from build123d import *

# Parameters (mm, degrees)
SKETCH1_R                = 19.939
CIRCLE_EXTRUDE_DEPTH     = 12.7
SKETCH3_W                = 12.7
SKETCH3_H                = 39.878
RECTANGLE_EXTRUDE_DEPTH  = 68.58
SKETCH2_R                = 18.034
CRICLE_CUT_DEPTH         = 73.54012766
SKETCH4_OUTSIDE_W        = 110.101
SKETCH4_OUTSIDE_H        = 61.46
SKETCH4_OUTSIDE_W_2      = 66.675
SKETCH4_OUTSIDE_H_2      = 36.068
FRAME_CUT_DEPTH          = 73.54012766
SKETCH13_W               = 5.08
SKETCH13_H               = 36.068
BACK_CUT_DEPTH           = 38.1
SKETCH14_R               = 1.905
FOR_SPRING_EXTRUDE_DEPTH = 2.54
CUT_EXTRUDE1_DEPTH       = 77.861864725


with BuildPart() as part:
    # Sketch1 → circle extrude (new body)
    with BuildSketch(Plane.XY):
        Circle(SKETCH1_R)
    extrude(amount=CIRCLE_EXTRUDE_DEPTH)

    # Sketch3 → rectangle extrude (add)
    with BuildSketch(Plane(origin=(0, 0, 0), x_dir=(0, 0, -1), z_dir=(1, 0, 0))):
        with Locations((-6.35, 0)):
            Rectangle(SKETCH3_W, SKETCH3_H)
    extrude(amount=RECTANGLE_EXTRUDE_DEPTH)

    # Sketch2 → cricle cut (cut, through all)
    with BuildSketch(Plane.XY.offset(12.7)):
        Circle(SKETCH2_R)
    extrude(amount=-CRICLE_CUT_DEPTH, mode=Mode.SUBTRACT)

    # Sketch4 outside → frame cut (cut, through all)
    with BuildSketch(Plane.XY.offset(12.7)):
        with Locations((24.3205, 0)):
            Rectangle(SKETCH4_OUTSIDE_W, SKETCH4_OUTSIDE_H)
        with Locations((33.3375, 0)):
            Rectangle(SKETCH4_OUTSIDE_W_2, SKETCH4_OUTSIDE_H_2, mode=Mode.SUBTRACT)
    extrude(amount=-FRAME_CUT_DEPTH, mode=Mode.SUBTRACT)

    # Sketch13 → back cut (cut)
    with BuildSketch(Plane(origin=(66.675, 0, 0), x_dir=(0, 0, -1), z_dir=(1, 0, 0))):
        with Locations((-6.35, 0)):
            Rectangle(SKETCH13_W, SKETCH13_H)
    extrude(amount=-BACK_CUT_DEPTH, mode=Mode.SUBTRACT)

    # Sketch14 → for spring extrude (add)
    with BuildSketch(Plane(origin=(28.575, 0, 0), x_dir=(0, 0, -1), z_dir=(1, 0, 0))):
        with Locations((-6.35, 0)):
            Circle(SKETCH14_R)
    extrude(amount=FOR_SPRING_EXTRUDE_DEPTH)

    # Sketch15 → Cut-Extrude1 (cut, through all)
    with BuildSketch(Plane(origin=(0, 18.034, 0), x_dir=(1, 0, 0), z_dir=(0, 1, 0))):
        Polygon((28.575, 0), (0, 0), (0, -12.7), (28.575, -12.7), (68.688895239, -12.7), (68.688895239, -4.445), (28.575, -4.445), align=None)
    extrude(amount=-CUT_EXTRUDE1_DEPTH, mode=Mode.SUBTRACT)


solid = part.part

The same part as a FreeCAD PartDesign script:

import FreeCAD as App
import Part
import Sketcher

V = App.Vector
Q = App.Units.Quantity

doc = App.newDocument("Part")
body = doc.addObject("PartDesign::Body", "Body")

sketch1 = doc.addObject("Sketcher::SketchObject", "Sketch")
body.addObject(sketch1)
sketch1.AttachmentSupport = (doc.XY_Plane, [""])
sketch1.MapMode = "FlatFace"
sketch1.addGeometry(Part.Circle(V(0, 0, 0), V(0, 0, 1), 19.939), False)
sketch1.addConstraint([
    Sketcher.Constraint("Coincident", 0, 3, -1, 1),
    Sketcher.Constraint("Diameter", 0, Q("1.57 in")),
])
pad1 = doc.addObject("PartDesign::Pad", "Pad")
body.addObject(pad1)
pad1.Profile = sketch1
pad1.Length = Q("0.5 in")

sketch2 = doc.addObject("Sketcher::SketchObject", "Sketch001")
body.addObject(sketch2)
sketch2.AttachmentSupport = (doc.YZ_Plane, [""])
sketch2.MapMode = "FlatFace"
sketch2.addGeometry([
    Part.LineSegment(V(19.939, 12.7, 0), V(-19.939, 12.7, 0)),
    Part.LineSegment(V(-19.939, 12.7, 0), V(-19.939, 0, 0)),
    Part.LineSegment(V(-19.939, 0, 0), V(19.939, 0, 0)),
    Part.LineSegment(V(19.939, 0, 0), V(19.939, 12.7, 0)),
], False)
sketch2.addConstraint([
    Sketcher.Constraint("Coincident", 0, 2, 1, 1),
    Sketcher.Constraint("Coincident", 1, 2, 2, 1),
    Sketcher.Constraint("Coincident", 2, 2, 3, 1),
    Sketcher.Constraint("Coincident", 3, 2, 0, 1),
    Sketcher.Constraint("Horizontal", 0),
    Sketcher.Constraint("Vertical", 1),
    Sketcher.Constraint("Horizontal", 2),
    Sketcher.Constraint("Vertical", 3),
    Sketcher.Constraint("Symmetric", 1, 2, 2, 2, -1, 1),
    Sketcher.Constraint("DistanceY", 1, 2, 1, 1, Q("0.5 in")),
    Sketcher.Constraint("DistanceX", 0, 2, 0, 1, Q("1.57 in")),
])
pad2 = doc.addObject("PartDesign::Pad", "Pad001")
body.addObject(pad2)
pad2.Profile = sketch2
pad2.Length = Q("2.7 in")

sketch3 = doc.addObject("Sketcher::SketchObject", "Sketch002")
body.addObject(sketch3)
sketch3.AttachmentSupport = (doc.XY_Plane, [""])
sketch3.MapMode = "FlatFace"
sketch3.AttachmentOffset = App.Placement(V(0, 0, 0.5 * 25.4), App.Rotation())
sketch3.addGeometry(Part.Circle(V(0, 0, 0), V(0, 0, 1), 18.034), False)
sketch3.addConstraint([
    Sketcher.Constraint("Coincident", 0, 3, -1, 1),
    Sketcher.Constraint("Diameter", 0, Q("1.42 in")),
])
pocket1 = doc.addObject("PartDesign::Pocket", "Pocket")
body.addObject(pocket1)
pocket1.Profile = sketch3
pocket1.Type = "ThroughAll"

sketch4 = doc.addObject("Sketcher::SketchObject", "Sketch003")
body.addObject(sketch4)
sketch4.AttachmentSupport = (doc.XY_Plane, [""])
sketch4.MapMode = "FlatFace"
sketch4.AttachmentOffset = App.Placement(V(0, 0, 0.5 * 25.4), App.Rotation())
sketch4.addGeometry([
    Part.LineSegment(V(-30.73, 30.73, 0), V(-30.73, -30.73, 0)),
    Part.LineSegment(V(-30.73, -30.73, 0), V(79.371, -30.73, 0)),
    Part.LineSegment(V(79.371, -30.73, 0), V(79.371, 30.73, 0)),
    Part.LineSegment(V(79.371, 30.73, 0), V(-30.73, 30.73, 0)),
    Part.LineSegment(V(66.675, -18.034, 0), V(0, -18.034, 0)),
    Part.LineSegment(V(0, -18.034, 0), V(0, 18.034, 0)),
    Part.LineSegment(V(0, 18.034, 0), V(66.675, 18.034, 0)),
    Part.LineSegment(V(66.675, 18.034, 0), V(66.675, -18.034, 0)),
], False)
sketch4.addConstraint([
    Sketcher.Constraint("Coincident", 0, 2, 1, 1),
    Sketcher.Constraint("Coincident", 1, 2, 2, 1),
    Sketcher.Constraint("Coincident", 2, 2, 3, 1),
    Sketcher.Constraint("Coincident", 3, 2, 0, 1),
    Sketcher.Constraint("Coincident", 4, 2, 5, 1),
    Sketcher.Constraint("Coincident", 5, 2, 6, 1),
    Sketcher.Constraint("Coincident", 6, 2, 7, 1),
    Sketcher.Constraint("Coincident", 7, 2, 4, 1),
    Sketcher.Constraint("Vertical", 0),
    Sketcher.Constraint("Horizontal", 1),
    Sketcher.Constraint("Vertical", 2),
    Sketcher.Constraint("Horizontal", 3),
    Sketcher.Constraint("Horizontal", 4),
    Sketcher.Constraint("Vertical", 5),
    Sketcher.Constraint("Horizontal", 6),
    Sketcher.Constraint("Vertical", 7),
    Sketcher.Constraint("Symmetric", 4, 2, 5, 2, -1, 1),
    Sketcher.Constraint("DistanceY", 5, 1, 5, 2, Q("1.42 in")),
    Sketcher.Constraint("DistanceX", 4, 2, 4, 1, Q("2.625 in")),
    Sketcher.Constraint("DistanceX", 1, 1, 1, 2, 110.101),
    Sketcher.Constraint("DistanceY", 0, 2, 0, 1, 61.46),
    Sketcher.Constraint("DistanceX", 0, 2, -1, 1, 30.73),
    Sketcher.Constraint("DistanceY", 0, 2, -1, 1, 30.73),
])
pocket2 = doc.addObject("PartDesign::Pocket", "Pocket001")
body.addObject(pocket2)
pocket2.Profile = sketch4
pocket2.Type = "ThroughAll"

sketch5 = doc.addObject("Sketcher::SketchObject", "Sketch004")
body.addObject(sketch5)
sketch5.AttachmentSupport = (doc.YZ_Plane, [""])
sketch5.MapMode = "FlatFace"
sketch5.AttachmentOffset = App.Placement(V(0, 0, 2.625 * 25.4), App.Rotation())
sketch5.addGeometry([
    Part.LineSegment(V(18.034, 8.89, 0), V(-18.034, 8.89, 0)),
    Part.LineSegment(V(-18.034, 8.89, 0), V(-18.034, 3.81, 0)),
    Part.LineSegment(V(-18.034, 3.81, 0), V(18.034, 3.81, 0)),
    Part.LineSegment(V(18.034, 3.81, 0), V(18.034, 8.89, 0)),
], False)
sketch5.addConstraint([
    Sketcher.Constraint("Coincident", 0, 2, 1, 1),
    Sketcher.Constraint("Coincident", 1, 2, 2, 1),
    Sketcher.Constraint("Coincident", 2, 2, 3, 1),
    Sketcher.Constraint("Coincident", 3, 2, 0, 1),
    Sketcher.Constraint("Horizontal", 0),
    Sketcher.Constraint("Vertical", 1),
    Sketcher.Constraint("Horizontal", 2),
    Sketcher.Constraint("Vertical", 3),
    Sketcher.Constraint("DistanceY", 1, 2, 1, 1, Q("0.2 in")),
    Sketcher.Constraint("DistanceX", 0, 2, 0, 1, Q("1.42 in")),
    Sketcher.Constraint("DistanceX", 0, 2, -1, 1, Q("0.71 in")),
    Sketcher.Constraint("DistanceY", -1, 1, 0, 2, Q("0.35 in")),
])
pocket3 = doc.addObject("PartDesign::Pocket", "Pocket002")
body.addObject(pocket3)
pocket3.Profile = sketch5
pocket3.Length = Q("1.5 in")

sketch6 = doc.addObject("Sketcher::SketchObject", "Sketch005")
body.addObject(sketch6)
sketch6.AttachmentSupport = (doc.YZ_Plane, [""])
sketch6.MapMode = "FlatFace"
sketch6.AttachmentOffset = App.Placement(V(0, 0, 1.125 * 25.4), App.Rotation())
sketch6.addGeometry(Part.Circle(V(0, 6.35, 0), V(0, 0, 1), 1.905), False)
sketch6.addConstraint([
    Sketcher.Constraint("PointOnObject", 0, 3, -2),
    Sketcher.Constraint("Diameter", 0, Q("0.15 in")),
    Sketcher.Constraint("DistanceY", -1, 1, 0, 3, Q("0.25 in")),
])
pad3 = doc.addObject("PartDesign::Pad", "Pad002")
body.addObject(pad3)
pad3.Profile = sketch6
pad3.Length = Q("0.1 in")

sketch7 = doc.addObject("Sketcher::SketchObject", "Sketch006")
body.addObject(sketch7)
sketch7.AttachmentSupport = (doc.XZ_Plane, [""])
sketch7.MapMode = "FlatFace"
sketch7.AttachmentOffset = App.Placement(V(0, 0, -0.71 * 25.4), App.Rotation())
sketch7.addGeometry([
    Part.LineSegment(V(28.575, 0, 0), V(0, 0, 0)),
    Part.LineSegment(V(0, 0, 0), V(0, 12.7, 0)),
    Part.LineSegment(V(0, 12.7, 0), V(68.688895, 12.7, 0)),
    Part.LineSegment(V(68.688895, 12.7, 0), V(68.688895, 4.445, 0)),
    Part.LineSegment(V(68.688895, 4.445, 0), V(28.575, 4.445, 0)),
    Part.LineSegment(V(28.575, 4.445, 0), V(28.575, 0, 0)),
], False)
sketch7.addConstraint([
    Sketcher.Constraint("Coincident", 0, 2, 1, 1),
    Sketcher.Constraint("Coincident", 1, 2, 2, 1),
    Sketcher.Constraint("Coincident", 2, 2, 3, 1),
    Sketcher.Constraint("Coincident", 3, 2, 4, 1),
    Sketcher.Constraint("Coincident", 4, 2, 5, 1),
    Sketcher.Constraint("Coincident", 5, 2, 0, 1),
    Sketcher.Constraint("Horizontal", 0),
    Sketcher.Constraint("Vertical", 1),
    Sketcher.Constraint("Horizontal", 2),
    Sketcher.Constraint("Vertical", 3),
    Sketcher.Constraint("Horizontal", 4),
    Sketcher.Constraint("Vertical", 5),
    Sketcher.Constraint("Coincident", 0, 2, -1, 1),
    Sketcher.Constraint("DistanceY", 1, 1, 1, 2, Q("0.5 in")),
    Sketcher.Constraint("DistanceX", 0, 2, 0, 1, Q("1.125 in")),
    Sketcher.Constraint("DistanceY", 3, 2, 3, 1, Q("0.325 in")),
    Sketcher.Constraint("DistanceX", 2, 1, 2, 2, 68.688895),
])
pocket4 = doc.addObject("PartDesign::Pocket", "Pocket003")
body.addObject(pocket4)
pocket4.Profile = sketch7
pocket4.Type = "ThroughAll"
pocket4.Reversed = True

doc.recompute()
